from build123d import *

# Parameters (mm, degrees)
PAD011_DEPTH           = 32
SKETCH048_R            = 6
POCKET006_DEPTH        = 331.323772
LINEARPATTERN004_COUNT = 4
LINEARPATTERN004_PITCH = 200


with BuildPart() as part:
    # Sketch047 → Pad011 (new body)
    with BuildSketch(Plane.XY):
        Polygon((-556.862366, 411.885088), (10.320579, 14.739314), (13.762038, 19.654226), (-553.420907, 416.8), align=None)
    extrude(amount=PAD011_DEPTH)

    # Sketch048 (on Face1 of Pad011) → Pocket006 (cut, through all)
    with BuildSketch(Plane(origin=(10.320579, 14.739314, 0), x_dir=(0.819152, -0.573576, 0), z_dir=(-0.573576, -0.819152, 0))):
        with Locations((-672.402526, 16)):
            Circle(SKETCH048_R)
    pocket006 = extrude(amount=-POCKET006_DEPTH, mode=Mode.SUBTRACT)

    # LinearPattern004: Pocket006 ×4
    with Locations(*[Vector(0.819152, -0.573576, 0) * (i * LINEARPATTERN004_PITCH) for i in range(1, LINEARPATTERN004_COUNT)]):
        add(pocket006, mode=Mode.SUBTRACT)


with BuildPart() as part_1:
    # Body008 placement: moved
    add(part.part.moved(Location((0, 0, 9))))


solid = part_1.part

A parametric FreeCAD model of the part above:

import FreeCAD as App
import Part
import Sketcher
Q = App.Units.Quantity

doc = App.newDocument("Part")
body = doc.addObject("PartDesign::Body", "Body")

sketch1 = doc.addObject("Sketcher::SketchObject", "Sketch")
body.addObject(sketch1)
sketch1.AttachmentSupport = (doc.XY_Plane, [""])
sketch1.MapMode = "FlatFace"
sketch1.addGeometry([
    Part.LineSegment(App.Vector(-556.862366, 411.885088, 0), App.Vector(10.320579, 14.739314, 0)),
    Part.LineSegment(App.Vector(10.320579, 14.739314, 0), App.Vector(13.762038, 19.654226, 0)),
    Part.LineSegment(App.Vector(13.762038, 19.654226, 0), App.Vector(-553.420907, 416.8, 0)),
    Part.LineSegment(App.Vector(-553.420907, 416.8, 0), App.Vector(-556.862366, 411.885088, 0)),
], False)
sketch1.addConstraint([
    Sketcher.Constraint("Coincident", 0, 2, 1, 1),
    Sketcher.Constraint("Coincident", 1, 2, 2, 1),
    Sketcher.Constraint("Coincident", 2, 2, 3, 1),
    Sketcher.Constraint("Coincident", 3, 2, 0, 1),
    Sketcher.Constraint("Perpendicular", 0, 1),
    Sketcher.Constraint("Perpendicular", 1, 2),
    Sketcher.Constraint("Perpendicular", 2, 3),
    Sketcher.Constraint("Angle", 0, Q("-35 deg")),
    Sketcher.Constraint("Distance", 1, Q("6 mm")),
    Sketcher.Constraint("DistanceY", -1, 1, 2, 2, Q("416.8 mm")),
    Sketcher.Constraint("DistanceX", -1, 1, 0, 2, Q("10.320579 mm")),
    Sketcher.Constraint("DistanceY", 1, 2, 3, 2, Q("392.230862 mm")),
])
pad1 = doc.addObject("PartDesign::Pad", "Pad")
body.addObject(pad1)
pad1.Profile = sketch1
pad1.Length = 32

sketch2 = doc.addObject("Sketcher::SketchObject", "Sketch001")
body.addObject(sketch2)
sketch2.Placement = App.Placement(App.Vector(10.320579, 14.739314, 0), App.Rotation(App.Vector(0.819152235, -0.573576164, 0), App.Vector(0, 0, 1), App.Vector(-0.573576164, -0.819152235, 0), "ZXY"))
sketch2.addGeometry(Part.Circle(App.Vector(-672.402526, 16, 0), App.Vector(0, 0, 1), 6), False)
sketch2.addConstraint([
    Sketcher.Constraint("Diameter", 0, Q("12 mm")),
    Sketcher.Constraint("DistanceY", -1, 1, 0, 3, Q("16 mm")),
    Sketcher.Constraint("DistanceX", 0, 3, -1, 1, Q("672.402526 mm")),
])
pocket1 = doc.addObject("PartDesign::Pocket", "Pocket")
body.addObject(pocket1)
pocket1.Profile = sketch2
pocket1.Type = "ThroughAll"
doc.recompute()

datumline = doc.addObject("PartDesign::Line", "DatumLine")
body.addObject(datumline)
datumline.Placement = App.Placement(App.Vector(0, 0, 0), App.Rotation(App.Vector(0, 0, 1), App.Vector(0.819152235, -0.573576164, 0)))
linearpattern = doc.addObject("PartDesign::LinearPattern", "LinearPattern")
body.addObject(linearpattern)
linearpattern.Originals = [pocket1]
linearpattern.Direction = (datumline, [""])
linearpattern.Mode = "offset"
linearpattern.Offset = 199.999943
linearpattern.Occurrences = 4
body.Tip = linearpattern
body2 = doc.addObject("PartDesign::Body", "Body001")
doc.recompute()

body.Placement = App.Placement(App.Vector(0, 0, 9), App.Rotation(App.Vector(0, 0, 1), 0))
boolean = doc.addObject("PartDesign::Boolean", "Boolean")
body2.addObject(boolean)
boolean.Type = "Fuse"
boolean.addObjects([body])

doc.recompute()
